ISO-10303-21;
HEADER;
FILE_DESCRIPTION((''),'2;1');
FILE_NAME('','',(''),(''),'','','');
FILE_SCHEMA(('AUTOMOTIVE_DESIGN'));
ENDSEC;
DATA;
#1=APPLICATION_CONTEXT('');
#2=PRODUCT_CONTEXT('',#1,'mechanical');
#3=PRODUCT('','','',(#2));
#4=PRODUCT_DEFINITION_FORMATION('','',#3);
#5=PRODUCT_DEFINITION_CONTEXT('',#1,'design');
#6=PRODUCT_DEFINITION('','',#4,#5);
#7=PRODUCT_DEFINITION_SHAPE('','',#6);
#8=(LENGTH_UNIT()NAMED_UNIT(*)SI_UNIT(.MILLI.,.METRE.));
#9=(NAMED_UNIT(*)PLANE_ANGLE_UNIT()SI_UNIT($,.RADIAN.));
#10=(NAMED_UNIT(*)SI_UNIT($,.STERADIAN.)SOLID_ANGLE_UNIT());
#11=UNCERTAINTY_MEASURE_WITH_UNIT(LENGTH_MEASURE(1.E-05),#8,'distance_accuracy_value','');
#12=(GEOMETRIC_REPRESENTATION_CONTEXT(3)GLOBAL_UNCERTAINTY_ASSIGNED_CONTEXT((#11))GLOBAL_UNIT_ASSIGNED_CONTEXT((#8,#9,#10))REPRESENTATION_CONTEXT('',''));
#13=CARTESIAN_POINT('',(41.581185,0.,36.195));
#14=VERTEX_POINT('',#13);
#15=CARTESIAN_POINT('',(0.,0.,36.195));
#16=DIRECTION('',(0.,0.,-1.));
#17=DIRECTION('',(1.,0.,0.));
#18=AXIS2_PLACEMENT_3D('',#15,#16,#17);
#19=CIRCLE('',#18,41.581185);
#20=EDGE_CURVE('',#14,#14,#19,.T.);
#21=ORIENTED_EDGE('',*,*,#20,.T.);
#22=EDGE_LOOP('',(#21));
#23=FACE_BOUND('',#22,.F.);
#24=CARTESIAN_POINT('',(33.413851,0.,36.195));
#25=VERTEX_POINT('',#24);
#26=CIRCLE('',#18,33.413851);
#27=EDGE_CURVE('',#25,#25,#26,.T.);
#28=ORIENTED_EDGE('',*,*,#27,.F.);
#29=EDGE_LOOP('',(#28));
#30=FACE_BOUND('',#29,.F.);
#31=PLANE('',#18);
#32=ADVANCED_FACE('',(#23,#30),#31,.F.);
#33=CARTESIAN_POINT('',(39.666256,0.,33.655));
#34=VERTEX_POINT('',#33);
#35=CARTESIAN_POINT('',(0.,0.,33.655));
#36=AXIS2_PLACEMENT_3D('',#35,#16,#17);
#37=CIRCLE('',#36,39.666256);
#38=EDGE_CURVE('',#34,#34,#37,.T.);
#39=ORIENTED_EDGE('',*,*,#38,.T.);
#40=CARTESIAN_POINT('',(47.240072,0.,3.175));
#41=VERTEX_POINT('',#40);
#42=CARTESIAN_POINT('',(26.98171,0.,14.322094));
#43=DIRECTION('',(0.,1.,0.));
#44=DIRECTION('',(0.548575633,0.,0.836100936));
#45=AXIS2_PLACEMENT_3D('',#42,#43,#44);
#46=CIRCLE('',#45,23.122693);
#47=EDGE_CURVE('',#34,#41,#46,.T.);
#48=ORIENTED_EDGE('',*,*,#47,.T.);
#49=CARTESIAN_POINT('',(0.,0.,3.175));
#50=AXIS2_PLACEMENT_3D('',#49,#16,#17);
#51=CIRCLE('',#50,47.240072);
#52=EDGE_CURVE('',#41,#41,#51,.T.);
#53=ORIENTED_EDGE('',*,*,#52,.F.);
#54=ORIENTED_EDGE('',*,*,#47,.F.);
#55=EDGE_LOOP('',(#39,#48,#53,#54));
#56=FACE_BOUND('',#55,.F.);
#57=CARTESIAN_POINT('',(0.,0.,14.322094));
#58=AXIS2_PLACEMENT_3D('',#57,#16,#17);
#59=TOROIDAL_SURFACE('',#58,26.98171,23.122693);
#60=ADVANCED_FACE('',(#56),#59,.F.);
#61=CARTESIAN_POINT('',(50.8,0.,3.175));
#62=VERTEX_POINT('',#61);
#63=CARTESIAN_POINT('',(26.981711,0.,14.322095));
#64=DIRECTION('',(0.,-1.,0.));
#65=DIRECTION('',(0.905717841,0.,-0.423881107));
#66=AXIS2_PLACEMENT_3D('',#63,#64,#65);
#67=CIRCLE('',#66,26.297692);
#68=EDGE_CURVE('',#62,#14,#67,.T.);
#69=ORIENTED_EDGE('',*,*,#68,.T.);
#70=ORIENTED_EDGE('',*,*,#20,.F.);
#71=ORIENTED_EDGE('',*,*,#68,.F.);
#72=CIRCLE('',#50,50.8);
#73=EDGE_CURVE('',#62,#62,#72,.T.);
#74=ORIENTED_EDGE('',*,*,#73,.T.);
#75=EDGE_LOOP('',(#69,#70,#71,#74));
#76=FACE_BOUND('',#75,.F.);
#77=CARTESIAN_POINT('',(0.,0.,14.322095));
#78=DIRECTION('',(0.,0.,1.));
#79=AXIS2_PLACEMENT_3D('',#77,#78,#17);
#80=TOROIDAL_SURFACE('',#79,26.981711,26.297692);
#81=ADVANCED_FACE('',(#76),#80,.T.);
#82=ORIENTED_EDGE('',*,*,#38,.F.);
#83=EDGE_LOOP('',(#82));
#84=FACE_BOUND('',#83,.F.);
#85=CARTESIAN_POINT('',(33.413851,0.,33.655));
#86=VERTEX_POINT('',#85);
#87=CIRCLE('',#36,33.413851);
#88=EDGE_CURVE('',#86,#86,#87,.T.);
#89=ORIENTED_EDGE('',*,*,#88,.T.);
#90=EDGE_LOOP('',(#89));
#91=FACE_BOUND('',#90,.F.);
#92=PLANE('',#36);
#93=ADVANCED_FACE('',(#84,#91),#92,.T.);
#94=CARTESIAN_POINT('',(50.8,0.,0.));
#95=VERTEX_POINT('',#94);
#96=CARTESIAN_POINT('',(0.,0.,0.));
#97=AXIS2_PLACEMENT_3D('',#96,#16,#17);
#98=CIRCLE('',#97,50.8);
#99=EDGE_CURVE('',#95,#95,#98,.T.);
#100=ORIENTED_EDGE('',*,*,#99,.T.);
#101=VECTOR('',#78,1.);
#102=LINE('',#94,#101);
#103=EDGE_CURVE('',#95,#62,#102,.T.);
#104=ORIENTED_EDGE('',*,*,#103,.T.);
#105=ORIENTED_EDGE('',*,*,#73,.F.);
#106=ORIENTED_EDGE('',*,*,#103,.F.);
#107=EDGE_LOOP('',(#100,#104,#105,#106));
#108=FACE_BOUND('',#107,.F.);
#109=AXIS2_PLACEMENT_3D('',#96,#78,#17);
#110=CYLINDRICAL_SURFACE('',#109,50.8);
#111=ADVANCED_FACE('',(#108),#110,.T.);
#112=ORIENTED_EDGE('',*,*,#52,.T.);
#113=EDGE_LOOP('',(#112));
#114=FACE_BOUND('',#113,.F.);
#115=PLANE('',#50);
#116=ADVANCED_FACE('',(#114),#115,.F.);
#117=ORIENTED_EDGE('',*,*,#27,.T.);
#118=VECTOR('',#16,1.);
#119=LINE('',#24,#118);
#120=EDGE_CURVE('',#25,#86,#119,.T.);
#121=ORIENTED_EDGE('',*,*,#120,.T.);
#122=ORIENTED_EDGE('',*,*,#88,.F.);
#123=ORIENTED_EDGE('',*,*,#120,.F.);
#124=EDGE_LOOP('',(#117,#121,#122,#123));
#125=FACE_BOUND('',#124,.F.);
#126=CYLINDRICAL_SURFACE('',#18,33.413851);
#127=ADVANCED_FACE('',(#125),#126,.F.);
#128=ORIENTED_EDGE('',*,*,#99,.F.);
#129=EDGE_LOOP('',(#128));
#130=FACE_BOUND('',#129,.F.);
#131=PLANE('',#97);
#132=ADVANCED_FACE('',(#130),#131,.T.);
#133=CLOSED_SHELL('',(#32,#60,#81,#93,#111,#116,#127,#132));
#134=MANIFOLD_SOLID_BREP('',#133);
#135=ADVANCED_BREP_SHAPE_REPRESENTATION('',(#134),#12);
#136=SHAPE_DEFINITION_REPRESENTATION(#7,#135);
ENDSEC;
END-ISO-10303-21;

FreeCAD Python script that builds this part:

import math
import FreeCAD as App
import Part
import Sketcher
Q = App.Units.Quantity

doc = App.newDocument("Part")
body = doc.addObject("PartDesign::Body", "Body")

sketch1 = body.newObject("Sketcher::SketchObject", "Sketch")
sketch1.AttachmentSupport = (doc.getObject("XZ_Plane"), [""])
sketch1.MapMode = "FlatFace"
sketch1.addGeometry([
    Part.LineSegment(App.Vector(0, 3.2, 0), App.Vector(0, 0, 0)),
    Part.LineSegment(App.Vector(0, 0, 0), App.Vector(50.8, 0, 0)),
    Part.LineSegment(App.Vector(50.8, 0, 0), App.Vector(50.8, 3.2, 0)),
    Part.ArcOfCircle(Part.Circle(App.Vector(27, 14.3, 0), App.Vector(0, 0, 1), 26.3), math.radians(-25), math.radians(56)),
    Part.LineSegment(App.Vector(41.6, 36.2, 0), App.Vector(33.4, 36.2, 0)),
    Part.LineSegment(App.Vector(33.4, 36.2, 0), App.Vector(33.4, 33.7, 0)),
    Part.LineSegment(App.Vector(33.4, 33.7, 0), App.Vector(39.7, 33.7, 0)),
    Part.ArcOfCircle(Part.Circle(App.Vector(27, 14.3, 0), App.Vector(0, 0, 1), 23.1), math.radians(-29), math.radians(57)),
    Part.LineSegment(App.Vector(47.2, 3.2, 0), App.Vector(0, 3.2, 0)),
], False)
sketch1.addConstraint([
    Sketcher.Constraint("Coincident", 0, 2, 1, 1),
    Sketcher.Constraint("Coincident", 1, 2, 2, 1),
    Sketcher.Constraint("Coincident", 2, 2, 3, 1),
    Sketcher.Constraint("Coincident", 3, 2, 4, 1),
    Sketcher.Constraint("Coincident", 4, 2, 5, 1),
    Sketcher.Constraint("Coincident", 5, 2, 6, 1),
    Sketcher.Constraint("Coincident", 6, 2, 7, 2),
    Sketcher.Constraint("Coincident", 7, 1, 8, 1),
    Sketcher.Constraint("Coincident", 8, 2, 0, 1),
    Sketcher.Constraint("Vertical", 0),
    Sketcher.Constraint("Horizontal", 1),
    Sketcher.Constraint("Vertical", 2),
    Sketcher.Constraint("Horizontal", 4),
    Sketcher.Constraint("Vertical", 5),
    Sketcher.Constraint("Horizontal", 6),
    Sketcher.Constraint("Horizontal", 8),
    Sketcher.Constraint("Coincident", 0, 2, -1, 1),
    Sketcher.Constraint("Coincident", 7, 3, 3, 3),
    Sketcher.Constraint("Horizontal", 2, 2, 7, 1),
    Sketcher.Constraint("DistanceX", 1, 1, 1, 2, Q("2 in")),
    Sketcher.Constraint("DistanceY", 5, 2, 5, 1, Q("0.1 in")),
    Sketcher.Constraint("DistanceY", 2, 2, 3, 2, Q("1.3 in")),
    Sketcher.Constraint("DistanceY", 0, 2, 0, 1, Q("0.125 in")),
    Sketcher.Constraint("Radius", 3, 26.297692),
    Sketcher.Constraint("Radius", 7, 23.122693),
    Sketcher.Constraint("DistanceX", 8, 2, 8, 1, 47.240072),
    Sketcher.Constraint("DistanceX", 4, 2, 4, 1, 8.167334),
])
revolution = body.newObject("PartDesign::Revolution", "Revolution")
revolution.Profile = sketch1
revolution.ReferenceAxis = (sketch1, ["V_Axis"])
revolution.Angle = 360

doc.recompute()
